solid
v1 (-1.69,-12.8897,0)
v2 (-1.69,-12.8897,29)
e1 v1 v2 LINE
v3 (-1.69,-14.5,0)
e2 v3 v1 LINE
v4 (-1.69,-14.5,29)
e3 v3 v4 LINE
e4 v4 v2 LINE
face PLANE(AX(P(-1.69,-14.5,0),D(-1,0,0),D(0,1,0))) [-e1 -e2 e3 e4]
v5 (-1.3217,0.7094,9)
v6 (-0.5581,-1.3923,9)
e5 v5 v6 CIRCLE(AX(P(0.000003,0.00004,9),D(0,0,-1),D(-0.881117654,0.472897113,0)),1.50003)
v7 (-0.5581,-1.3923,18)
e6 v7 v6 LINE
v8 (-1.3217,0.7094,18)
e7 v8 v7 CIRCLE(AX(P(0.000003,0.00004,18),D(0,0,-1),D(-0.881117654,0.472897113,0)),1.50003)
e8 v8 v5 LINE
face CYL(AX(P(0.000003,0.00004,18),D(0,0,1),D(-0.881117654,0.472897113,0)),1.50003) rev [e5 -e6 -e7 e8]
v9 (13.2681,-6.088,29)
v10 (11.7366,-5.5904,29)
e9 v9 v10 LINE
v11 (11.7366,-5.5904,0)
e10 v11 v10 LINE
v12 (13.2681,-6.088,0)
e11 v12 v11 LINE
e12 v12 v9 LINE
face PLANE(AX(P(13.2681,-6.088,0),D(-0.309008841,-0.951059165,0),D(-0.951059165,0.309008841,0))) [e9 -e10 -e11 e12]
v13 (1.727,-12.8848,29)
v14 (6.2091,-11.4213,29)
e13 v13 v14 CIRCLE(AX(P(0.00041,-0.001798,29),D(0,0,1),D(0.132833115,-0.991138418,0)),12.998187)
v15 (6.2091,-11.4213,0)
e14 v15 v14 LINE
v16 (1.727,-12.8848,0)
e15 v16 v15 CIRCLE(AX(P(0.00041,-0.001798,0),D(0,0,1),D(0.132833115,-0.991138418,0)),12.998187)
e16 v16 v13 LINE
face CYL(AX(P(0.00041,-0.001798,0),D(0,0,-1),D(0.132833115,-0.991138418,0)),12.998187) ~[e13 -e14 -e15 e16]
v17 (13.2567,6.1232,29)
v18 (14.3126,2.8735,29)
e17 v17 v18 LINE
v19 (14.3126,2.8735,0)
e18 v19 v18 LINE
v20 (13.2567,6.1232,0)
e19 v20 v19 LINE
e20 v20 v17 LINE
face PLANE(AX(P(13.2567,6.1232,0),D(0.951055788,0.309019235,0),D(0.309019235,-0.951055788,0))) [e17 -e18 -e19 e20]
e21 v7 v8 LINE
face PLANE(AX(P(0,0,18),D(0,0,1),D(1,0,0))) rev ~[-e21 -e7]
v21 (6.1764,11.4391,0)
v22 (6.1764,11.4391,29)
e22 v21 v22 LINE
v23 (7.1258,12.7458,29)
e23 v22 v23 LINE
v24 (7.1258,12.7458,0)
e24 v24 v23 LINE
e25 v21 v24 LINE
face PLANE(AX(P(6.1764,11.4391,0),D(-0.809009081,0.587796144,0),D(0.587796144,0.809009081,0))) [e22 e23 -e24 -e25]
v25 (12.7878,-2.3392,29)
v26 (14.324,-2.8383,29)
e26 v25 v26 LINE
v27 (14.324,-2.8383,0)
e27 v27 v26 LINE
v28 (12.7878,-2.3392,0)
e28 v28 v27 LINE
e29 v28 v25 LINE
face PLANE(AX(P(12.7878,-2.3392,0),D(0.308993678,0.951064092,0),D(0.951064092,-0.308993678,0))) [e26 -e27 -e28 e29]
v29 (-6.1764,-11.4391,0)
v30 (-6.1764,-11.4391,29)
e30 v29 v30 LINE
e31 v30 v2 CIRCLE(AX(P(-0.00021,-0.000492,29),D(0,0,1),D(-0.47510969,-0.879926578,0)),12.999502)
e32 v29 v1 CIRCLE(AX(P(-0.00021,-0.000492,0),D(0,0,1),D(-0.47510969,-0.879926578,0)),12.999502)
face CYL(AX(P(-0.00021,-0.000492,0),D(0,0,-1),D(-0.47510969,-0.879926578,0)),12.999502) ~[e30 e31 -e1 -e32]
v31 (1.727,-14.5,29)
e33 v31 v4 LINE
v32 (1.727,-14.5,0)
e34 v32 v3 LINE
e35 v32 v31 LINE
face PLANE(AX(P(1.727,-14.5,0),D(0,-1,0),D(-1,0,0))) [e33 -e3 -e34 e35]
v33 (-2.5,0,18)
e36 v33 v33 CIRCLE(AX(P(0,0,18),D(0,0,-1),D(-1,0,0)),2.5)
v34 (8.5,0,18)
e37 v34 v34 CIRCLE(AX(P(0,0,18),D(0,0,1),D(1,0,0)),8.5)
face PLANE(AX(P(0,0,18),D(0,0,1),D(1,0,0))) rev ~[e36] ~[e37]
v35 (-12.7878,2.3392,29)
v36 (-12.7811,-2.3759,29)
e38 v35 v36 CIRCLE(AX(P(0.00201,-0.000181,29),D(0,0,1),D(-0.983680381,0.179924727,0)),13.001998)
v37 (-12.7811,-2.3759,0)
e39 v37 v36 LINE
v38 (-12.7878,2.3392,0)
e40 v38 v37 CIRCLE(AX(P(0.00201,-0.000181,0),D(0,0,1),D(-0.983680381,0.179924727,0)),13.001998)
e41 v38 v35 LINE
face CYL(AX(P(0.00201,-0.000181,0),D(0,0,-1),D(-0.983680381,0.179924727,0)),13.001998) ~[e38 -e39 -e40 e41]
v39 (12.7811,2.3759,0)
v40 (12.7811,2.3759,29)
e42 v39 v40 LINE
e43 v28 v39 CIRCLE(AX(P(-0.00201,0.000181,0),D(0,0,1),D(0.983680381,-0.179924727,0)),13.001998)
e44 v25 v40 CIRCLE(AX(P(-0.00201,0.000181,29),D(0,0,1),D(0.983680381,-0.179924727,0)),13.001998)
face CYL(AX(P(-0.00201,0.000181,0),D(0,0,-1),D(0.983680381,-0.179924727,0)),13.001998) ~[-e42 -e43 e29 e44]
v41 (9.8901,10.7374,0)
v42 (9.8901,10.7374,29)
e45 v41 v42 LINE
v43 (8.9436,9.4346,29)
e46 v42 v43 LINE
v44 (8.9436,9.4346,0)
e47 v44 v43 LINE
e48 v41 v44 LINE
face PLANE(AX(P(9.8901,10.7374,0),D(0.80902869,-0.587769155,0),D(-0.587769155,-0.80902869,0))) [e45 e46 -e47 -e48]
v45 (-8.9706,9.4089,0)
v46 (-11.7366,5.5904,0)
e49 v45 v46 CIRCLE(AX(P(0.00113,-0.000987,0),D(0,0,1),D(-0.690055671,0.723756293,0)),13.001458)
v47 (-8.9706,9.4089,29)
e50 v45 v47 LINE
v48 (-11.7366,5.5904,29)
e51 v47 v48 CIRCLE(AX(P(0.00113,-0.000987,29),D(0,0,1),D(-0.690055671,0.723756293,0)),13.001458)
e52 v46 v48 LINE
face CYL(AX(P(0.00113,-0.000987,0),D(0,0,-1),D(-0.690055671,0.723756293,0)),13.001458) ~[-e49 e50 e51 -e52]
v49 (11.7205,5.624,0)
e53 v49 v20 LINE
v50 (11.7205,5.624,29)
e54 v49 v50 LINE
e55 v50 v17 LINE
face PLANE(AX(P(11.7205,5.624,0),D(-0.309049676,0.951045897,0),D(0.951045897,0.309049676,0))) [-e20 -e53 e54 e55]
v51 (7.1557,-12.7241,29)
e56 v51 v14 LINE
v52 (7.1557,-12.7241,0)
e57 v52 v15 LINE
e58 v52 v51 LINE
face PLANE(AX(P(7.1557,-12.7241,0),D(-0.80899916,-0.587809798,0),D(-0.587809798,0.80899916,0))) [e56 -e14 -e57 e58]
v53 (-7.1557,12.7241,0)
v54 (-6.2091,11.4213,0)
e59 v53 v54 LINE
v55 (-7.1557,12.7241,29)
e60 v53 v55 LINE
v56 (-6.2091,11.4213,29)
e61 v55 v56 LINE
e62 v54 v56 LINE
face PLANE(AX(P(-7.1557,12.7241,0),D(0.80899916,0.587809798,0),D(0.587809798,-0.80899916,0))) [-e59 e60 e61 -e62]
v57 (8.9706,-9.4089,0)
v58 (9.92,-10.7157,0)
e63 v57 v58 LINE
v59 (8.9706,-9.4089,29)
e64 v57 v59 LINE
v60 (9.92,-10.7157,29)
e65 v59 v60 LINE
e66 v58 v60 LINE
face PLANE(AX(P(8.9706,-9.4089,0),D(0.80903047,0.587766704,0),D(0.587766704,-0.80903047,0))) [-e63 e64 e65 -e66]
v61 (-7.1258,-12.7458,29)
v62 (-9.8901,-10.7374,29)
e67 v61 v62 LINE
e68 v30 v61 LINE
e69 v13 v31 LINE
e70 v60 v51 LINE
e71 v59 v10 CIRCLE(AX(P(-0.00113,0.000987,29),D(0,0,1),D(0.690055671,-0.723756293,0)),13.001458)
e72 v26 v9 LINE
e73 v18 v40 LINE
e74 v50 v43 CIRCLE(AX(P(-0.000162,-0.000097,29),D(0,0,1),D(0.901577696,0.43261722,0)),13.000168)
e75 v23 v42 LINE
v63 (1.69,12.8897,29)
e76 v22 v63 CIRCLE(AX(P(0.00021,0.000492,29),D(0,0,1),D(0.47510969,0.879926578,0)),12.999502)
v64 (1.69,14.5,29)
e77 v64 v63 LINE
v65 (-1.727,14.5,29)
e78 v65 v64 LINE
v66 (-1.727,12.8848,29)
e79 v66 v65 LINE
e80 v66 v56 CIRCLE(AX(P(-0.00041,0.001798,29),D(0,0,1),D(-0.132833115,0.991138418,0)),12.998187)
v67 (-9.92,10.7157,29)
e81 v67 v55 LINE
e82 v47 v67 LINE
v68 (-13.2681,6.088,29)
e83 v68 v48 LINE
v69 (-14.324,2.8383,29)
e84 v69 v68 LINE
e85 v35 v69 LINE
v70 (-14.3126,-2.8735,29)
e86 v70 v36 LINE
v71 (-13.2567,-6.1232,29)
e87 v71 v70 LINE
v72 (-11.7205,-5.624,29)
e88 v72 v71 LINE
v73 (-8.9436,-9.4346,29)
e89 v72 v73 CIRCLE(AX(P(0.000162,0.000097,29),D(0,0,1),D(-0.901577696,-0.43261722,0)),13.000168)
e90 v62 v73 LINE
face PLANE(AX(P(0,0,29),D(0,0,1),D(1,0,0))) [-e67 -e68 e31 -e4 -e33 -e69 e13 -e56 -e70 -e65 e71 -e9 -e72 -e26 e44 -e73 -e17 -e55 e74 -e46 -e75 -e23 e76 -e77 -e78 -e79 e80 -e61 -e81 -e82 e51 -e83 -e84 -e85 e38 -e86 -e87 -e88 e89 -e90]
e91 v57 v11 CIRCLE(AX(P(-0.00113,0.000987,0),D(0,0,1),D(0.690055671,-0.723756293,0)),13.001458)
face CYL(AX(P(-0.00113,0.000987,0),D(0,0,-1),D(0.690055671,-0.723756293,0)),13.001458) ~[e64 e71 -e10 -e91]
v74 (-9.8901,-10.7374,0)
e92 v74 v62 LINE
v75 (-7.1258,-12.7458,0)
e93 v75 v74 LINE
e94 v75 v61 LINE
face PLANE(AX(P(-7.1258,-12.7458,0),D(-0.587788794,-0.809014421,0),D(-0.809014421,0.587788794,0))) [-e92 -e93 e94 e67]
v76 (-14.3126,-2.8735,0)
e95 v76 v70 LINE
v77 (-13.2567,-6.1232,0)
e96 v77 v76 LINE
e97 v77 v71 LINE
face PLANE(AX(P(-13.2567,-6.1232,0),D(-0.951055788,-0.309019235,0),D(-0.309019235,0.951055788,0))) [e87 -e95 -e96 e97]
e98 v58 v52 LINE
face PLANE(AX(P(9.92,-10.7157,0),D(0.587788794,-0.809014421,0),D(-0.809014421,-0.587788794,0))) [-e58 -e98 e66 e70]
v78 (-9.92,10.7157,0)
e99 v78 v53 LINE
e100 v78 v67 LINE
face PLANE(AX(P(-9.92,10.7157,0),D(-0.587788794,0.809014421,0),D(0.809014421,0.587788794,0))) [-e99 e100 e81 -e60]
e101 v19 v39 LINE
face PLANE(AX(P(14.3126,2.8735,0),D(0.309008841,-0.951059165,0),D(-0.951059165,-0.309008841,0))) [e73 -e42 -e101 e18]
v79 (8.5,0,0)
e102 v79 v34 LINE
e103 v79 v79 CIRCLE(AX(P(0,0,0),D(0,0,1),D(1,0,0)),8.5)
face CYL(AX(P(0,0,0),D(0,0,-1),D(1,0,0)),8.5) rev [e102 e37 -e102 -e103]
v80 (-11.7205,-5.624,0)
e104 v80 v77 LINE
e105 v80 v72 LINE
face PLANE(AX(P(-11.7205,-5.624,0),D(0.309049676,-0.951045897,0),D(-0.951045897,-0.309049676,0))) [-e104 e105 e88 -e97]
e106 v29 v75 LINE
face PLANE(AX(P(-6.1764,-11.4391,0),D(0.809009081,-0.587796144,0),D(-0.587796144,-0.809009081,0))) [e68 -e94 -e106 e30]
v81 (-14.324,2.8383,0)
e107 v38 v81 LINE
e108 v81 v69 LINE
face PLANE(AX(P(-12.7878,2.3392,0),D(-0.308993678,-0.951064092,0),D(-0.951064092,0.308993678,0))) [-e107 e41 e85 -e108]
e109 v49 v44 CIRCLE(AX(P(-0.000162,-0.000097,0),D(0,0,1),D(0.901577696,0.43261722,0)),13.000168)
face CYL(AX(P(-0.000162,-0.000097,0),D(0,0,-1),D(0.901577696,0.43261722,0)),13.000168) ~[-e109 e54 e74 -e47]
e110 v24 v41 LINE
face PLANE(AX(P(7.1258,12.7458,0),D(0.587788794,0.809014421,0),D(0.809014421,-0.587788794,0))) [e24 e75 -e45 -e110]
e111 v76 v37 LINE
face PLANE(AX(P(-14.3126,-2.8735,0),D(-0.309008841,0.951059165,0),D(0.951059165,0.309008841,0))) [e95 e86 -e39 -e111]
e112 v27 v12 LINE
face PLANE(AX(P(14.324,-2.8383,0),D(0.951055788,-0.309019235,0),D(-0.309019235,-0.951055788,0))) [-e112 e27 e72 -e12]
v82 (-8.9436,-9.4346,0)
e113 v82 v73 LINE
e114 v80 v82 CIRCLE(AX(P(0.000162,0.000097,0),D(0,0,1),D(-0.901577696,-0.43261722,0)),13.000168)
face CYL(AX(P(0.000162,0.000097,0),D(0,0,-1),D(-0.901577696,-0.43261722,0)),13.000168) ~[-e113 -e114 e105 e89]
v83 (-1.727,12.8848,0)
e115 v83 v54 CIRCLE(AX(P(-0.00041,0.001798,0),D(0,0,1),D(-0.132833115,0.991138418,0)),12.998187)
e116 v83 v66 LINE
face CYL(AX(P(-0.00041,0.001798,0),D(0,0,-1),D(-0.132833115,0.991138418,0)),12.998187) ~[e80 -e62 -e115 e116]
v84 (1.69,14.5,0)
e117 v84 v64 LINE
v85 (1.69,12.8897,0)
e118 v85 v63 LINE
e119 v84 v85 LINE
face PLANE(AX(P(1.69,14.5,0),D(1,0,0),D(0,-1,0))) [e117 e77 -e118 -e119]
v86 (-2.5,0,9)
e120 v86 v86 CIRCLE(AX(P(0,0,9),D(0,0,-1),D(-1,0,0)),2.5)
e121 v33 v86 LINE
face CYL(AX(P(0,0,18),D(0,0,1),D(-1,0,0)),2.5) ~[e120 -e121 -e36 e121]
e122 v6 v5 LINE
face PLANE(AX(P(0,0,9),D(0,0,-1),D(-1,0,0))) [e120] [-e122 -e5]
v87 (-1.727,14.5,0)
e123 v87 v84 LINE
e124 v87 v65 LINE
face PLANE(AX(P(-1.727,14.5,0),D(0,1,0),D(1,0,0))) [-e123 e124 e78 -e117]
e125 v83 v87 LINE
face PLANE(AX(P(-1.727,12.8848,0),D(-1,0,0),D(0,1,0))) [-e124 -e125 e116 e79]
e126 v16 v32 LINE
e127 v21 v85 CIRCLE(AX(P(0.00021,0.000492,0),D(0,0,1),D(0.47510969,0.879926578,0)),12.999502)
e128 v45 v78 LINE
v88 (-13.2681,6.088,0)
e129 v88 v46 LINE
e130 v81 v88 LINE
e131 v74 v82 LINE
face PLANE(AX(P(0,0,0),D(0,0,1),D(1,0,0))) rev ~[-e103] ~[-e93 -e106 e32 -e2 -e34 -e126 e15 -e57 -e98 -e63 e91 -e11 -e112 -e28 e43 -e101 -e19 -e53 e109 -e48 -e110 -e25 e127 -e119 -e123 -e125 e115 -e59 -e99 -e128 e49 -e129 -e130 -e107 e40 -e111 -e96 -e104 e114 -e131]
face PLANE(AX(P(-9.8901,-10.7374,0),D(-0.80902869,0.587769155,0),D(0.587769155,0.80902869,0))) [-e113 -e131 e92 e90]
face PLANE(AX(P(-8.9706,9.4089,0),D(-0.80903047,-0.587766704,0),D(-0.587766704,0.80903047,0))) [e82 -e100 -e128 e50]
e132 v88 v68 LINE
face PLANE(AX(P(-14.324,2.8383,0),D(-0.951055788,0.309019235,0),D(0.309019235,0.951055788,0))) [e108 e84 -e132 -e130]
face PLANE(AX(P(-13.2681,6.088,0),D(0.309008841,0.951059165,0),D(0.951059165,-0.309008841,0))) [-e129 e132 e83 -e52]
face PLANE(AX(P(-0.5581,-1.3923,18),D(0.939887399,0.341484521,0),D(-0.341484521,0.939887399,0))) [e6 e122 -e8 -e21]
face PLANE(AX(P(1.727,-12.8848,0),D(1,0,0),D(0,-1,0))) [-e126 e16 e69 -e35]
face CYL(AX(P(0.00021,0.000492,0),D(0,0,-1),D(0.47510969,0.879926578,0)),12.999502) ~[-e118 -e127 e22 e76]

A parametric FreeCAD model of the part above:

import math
import FreeCAD as App
import Part
import Sketcher

V = App.Vector
Q = App.Units.Quantity

doc = App.newDocument("Part")
body = doc.addObject("PartDesign::Body", "Body")

sketch1 = body.newObject("Sketcher::SketchObject", "Sketch")
sketch1.AttachmentSupport = (doc.getObject("XY_Plane"), [""])
sketch1.MapMode = "FlatFace"
sketch1.addGeometry([
    Part.LineSegment(V(1.69, 14.5, 0), V(-1.727, 14.5, 0)),
    Part.LineSegment(V(-1.727, 14.5, 0), V(-1.727, 12.8848, 0)),
    Part.ArcOfCircle(Part.Circle(V(-0.00041, 0.001798, 0), V(0, 0, 1), 12.998187), math.radians(97.633338), math.radians(118.532563)),
    Part.LineSegment(V(-6.2091, 11.4213, 0), V(-7.1557, 12.7241, 0)),
    Part.LineSegment(V(-7.1557, 12.7241, 0), V(-9.92, 10.7157, 0)),
    Part.LineSegment(V(-9.92, 10.7157, 0), V(-8.9706, 9.4089, 0)),
    Part.ArcOfCircle(Part.Circle(V(0.00113, -0.000987, 0), V(0, 0, 1), 13.001458), math.radians(133.634516), math.radians(154.528729)),
    Part.LineSegment(V(-11.7366, 5.5904, 0), V(-13.2681, 6.088, 0)),
    Part.LineSegment(V(-13.2681, 6.088, 0), V(-14.324, 2.8383, 0)),
    Part.LineSegment(V(-14.324, 2.8383, 0), V(-12.7878, 2.3392, 0)),
    Part.ArcOfCircle(Part.Circle(V(0.00201, -0.000181, 0), V(0, 0, 1), 13.001998), math.radians(169.634625), math.radians(190.528206)),
    Part.LineSegment(V(-12.7811, -2.3759, 0), V(-14.3126, -2.8735, 0)),
    Part.LineSegment(V(-14.3126, -2.8735, 0), V(-13.2567, -6.1232, 0)),
    Part.LineSegment(V(-13.2567, -6.1232, 0), V(-11.7205, -5.624, 0)),
    Part.ArcOfCircle(Part.Circle(V(0, 0, 0), V(0, 0, 1), 13.000036), math.radians(-154.366305), math.radians(-133.469625)),
    Part.LineSegment(V(-8.9436, -9.4346, 0), V(-9.8901, -10.7374, 0)),
    Part.LineSegment(V(-9.8901, -10.7374, 0), V(-7.1258, -12.7458, 0)),
    Part.LineSegment(V(-7.1258, -12.7458, 0), V(-6.1764, -11.4391, 0)),
    Part.ArcOfCircle(Part.Circle(V(0, 0, 0), V(0, 0, 1), 12.999964), math.radians(-118.366277), math.radians(-97.469582)),
    Part.LineSegment(V(-1.69, -12.8897, 0), V(-1.69, -14.5, 0)),
    Part.LineSegment(V(-1.69, -14.5, 0), V(1.727, -14.5, 0)),
    Part.LineSegment(V(1.727, -14.5, 0), V(1.727, -12.8848, 0)),
    Part.ArcOfCircle(Part.Circle(V(0.00041, -0.001798, 0), V(0, 0, 1), 12.998187), math.radians(-82.366662), math.radians(-61.467437)),
    Part.LineSegment(V(6.2091, -11.4213, 0), V(7.1557, -12.7241, 0)),
    Part.LineSegment(V(7.1557, -12.7241, 0), V(9.92, -10.7157, 0)),
    Part.LineSegment(V(9.92, -10.7157, 0), V(8.9706, -9.4089, 0)),
    Part.ArcOfCircle(Part.Circle(V(-0.00113, 0.000987, 0), V(0, 0, 1), 13.001458), math.radians(-46.365484), math.radians(-25.471271)),
    Part.LineSegment(V(11.7366, -5.5904, 0), V(13.2681, -6.088, 0)),
    Part.LineSegment(V(13.2681, -6.088, 0), V(14.324, -2.8383, 0)),
    Part.LineSegment(V(14.324, -2.8383, 0), V(12.7878, -2.3392, 0)),
    Part.ArcOfCircle(Part.Circle(V(-0.00201, 0.000181, 0), V(0, 0, 1), 13.001998), math.radians(-10.365375), math.radians(10.528206)),
    Part.LineSegment(V(12.7811, 2.3759, 0), V(14.3126, 2.8735, 0)),
    Part.LineSegment(V(14.3126, 2.8735, 0), V(13.2567, 6.1232, 0)),
    Part.LineSegment(V(13.2567, 6.1232, 0), V(11.7205, 5.624, 0)),
    Part.ArcOfCircle(Part.Circle(V(0, 0, 0), V(0, 0, 1), 13.000036), math.radians(25.633695), math.radians(46.530375)),
    Part.LineSegment(V(8.9436, 9.4346, 0), V(9.8901, 10.7374, 0)),
    Part.LineSegment(V(9.8901, 10.7374, 0), V(7.1258, 12.7458, 0)),
    Part.LineSegment(V(7.1258, 12.7458, 0), V(6.1764, 11.4391, 0)),
    Part.ArcOfCircle(Part.Circle(V(0, 0, 0), V(0, 0, 1), 12.999964), math.radians(61.633723), math.radians(82.530418)),
    Part.LineSegment(V(1.69, 12.8897, 0), V(1.69, 14.5, 0)),
    Part.Circle(V(0, 0, 0), V(0, 0, 1), 8.5),
], False)
sketch1.addConstraint([
    Sketcher.Constraint("Coincident", 0, 2, 1, 1),
    Sketcher.Constraint("Coincident", 1, 2, 2, 1),
    Sketcher.Constraint("Coincident", 2, 2, 3, 1),
    Sketcher.Constraint("Coincident", 3, 2, 4, 1),
    Sketcher.Constraint("Coincident", 4, 2, 5, 1),
    Sketcher.Constraint("Coincident", 5, 2, 6, 1),
    Sketcher.Constraint("Coincident", 6, 2, 7, 1),
    Sketcher.Constraint("Coincident", 7, 2, 8, 1),
    Sketcher.Constraint("Coincident", 8, 2, 9, 1),
    Sketcher.Constraint("Coincident", 9, 2, 10, 1),
    Sketcher.Constraint("Coincident", 10, 2, 11, 1),
    Sketcher.Constraint("Coincident", 11, 2, 12, 1),
    Sketcher.Constraint("Coincident", 12, 2, 13, 1),
    Sketcher.Constraint("Coincident", 13, 2, 14, 1),
    Sketcher.Constraint("Coincident", 14, 2, 15, 1),
    Sketcher.Constraint("Coincident", 15, 2, 16, 1),
    Sketcher.Constraint("Coincident", 16, 2, 17, 1),
    Sketcher.Constraint("Coincident", 17, 2, 18, 1),
    Sketcher.Constraint("Coincident", 18, 2, 19, 1),
    Sketcher.Constraint("Coincident", 19, 2, 20, 1),
    Sketcher.Constraint("Coincident", 20, 2, 21, 1),
    Sketcher.Constraint("Coincident", 21, 2, 22, 1),
    Sketcher.Constraint("Coincident", 22, 2, 23, 1),
    Sketcher.Constraint("Coincident", 23, 2, 24, 1),
    Sketcher.Constraint("Coincident", 24, 2, 25, 1),
    Sketcher.Constraint("Coincident", 25, 2, 26, 1),
    Sketcher.Constraint("Coincident", 26, 2, 27, 1),
    Sketcher.Constraint("Coincident", 27, 2, 28, 1),
    Sketcher.Constraint("Coincident", 28, 2, 29, 1),
    Sketcher.Constraint("Coincident", 29, 2, 30, 1),
    Sketcher.Constraint("Coincident", 30, 2, 31, 1),
    Sketcher.Constraint("Coincident", 31, 2, 32, 1),
    Sketcher.Constraint("Coincident", 32, 2, 33, 1),
    Sketcher.Constraint("Coincident", 33, 2, 34, 1),
    Sketcher.Constraint("Coincident", 34, 2, 35, 1),
    Sketcher.Constraint("Coincident", 35, 2, 36, 1),
    Sketcher.Constraint("Coincident", 36, 2, 37, 1),
    Sketcher.Constraint("Coincident", 37, 2, 38, 1),
    Sketcher.Constraint("Coincident", 38, 2, 39, 1),
    Sketcher.Constraint("Coincident", 39, 2, 0, 1),
    Sketcher.Constraint("Horizontal", 0),
    Sketcher.Constraint("Vertical", 1),
    Sketcher.Constraint("Vertical", 19),
    Sketcher.Constraint("Horizontal", 20),
    Sketcher.Constraint("Vertical", 21),
    Sketcher.Constraint("Vertical", 39),
    Sketcher.Constraint("Coincident", 14, 3, -1, 1),
    Sketcher.Constraint("Coincident", 18, 3, -1, 1),
    Sketcher.Constraint("Coincident", 34, 3, -1, 1),
    Sketcher.Constraint("Coincident", 38, 3, -1, 1),
    Sketcher.Constraint("Coincident", 40, 3, -1, 1),
    Sketcher.Constraint("Equal", 14, 18),
    Sketcher.Constraint("Equal", 2, 22),
    Sketcher.Constraint("Equal", 6, 26),
    Sketcher.Constraint("Equal", 10, 30),
    Sketcher.Constraint("Equal", 18, 34),
    Sketcher.Constraint("Equal", 34, 38),
    Sketcher.Constraint("Symmetric", 2, 3, 22, 3, -1, 1),
    Sketcher.Constraint("Symmetric", 6, 3, 26, 3, -1, 1),
    Sketcher.Constraint("Symmetric", 10, 3, 30, 3, -1, 1),
    Sketcher.Constraint("Symmetric", 0, 2, 20, 2, -1, 1),
    Sketcher.Constraint("Symmetric", 3, 2, 23, 2, -1, 1),
    Sketcher.Constraint("Symmetric", 4, 2, 24, 2, -1, 1),
    Sketcher.Constraint("Symmetric", 7, 2, 27, 2, -1, 1),
    Sketcher.Constraint("Symmetric", 8, 2, 28, 2, -1, 1),
    Sketcher.Constraint("Symmetric", 11, 2, 31, 2, -1, 1),
    Sketcher.Constraint("Symmetric", 12, 2, 32, 2, -1, 1),
    Sketcher.Constraint("Symmetric", 15, 2, 35, 2, -1, 1),
    Sketcher.Constraint("Symmetric", 16, 2, 36, 2, -1, 1),
    Sketcher.Constraint("PointOnObject", 10, 3, -1),
    Sketcher.Constraint("Perpendicular", 3, 4),
    Sketcher.Constraint("Perpendicular", 4, 5),
    Sketcher.Constraint("Perpendicular", 7, 8),
    Sketcher.Constraint("Perpendicular", 8, 9),
    Sketcher.Constraint("Perpendicular", 11, 12),
    Sketcher.Constraint("Perpendicular", 12, 13),
    Sketcher.Constraint("Perpendicular", 15, 16),
    Sketcher.Constraint("Perpendicular", 16, 17),
    Sketcher.Constraint("Parallel", 5, 23),
    Sketcher.Constraint("Perpendicular", 24, 25),
    Sketcher.Constraint("Parallel", 9, 27),
    Sketcher.Constraint("Perpendicular", 28, 29),
    Sketcher.Constraint("Parallel", 13, 31),
    Sketcher.Constraint("Perpendicular", 32, 33),
    Sketcher.Constraint("Parallel", 17, 35),
    Sketcher.Constraint("Perpendicular", 36, 37),
    Sketcher.Constraint("Equal", 0, 20),
    Sketcher.Constraint("Equal", 3, 7),
    Sketcher.Constraint("Equal", 4, 8),
    Sketcher.Constraint("Equal", 5, 9),
    Sketcher.Constraint("Equal", 7, 11),
    Sketcher.Constraint("Equal", 8, 12),
    Sketcher.Constraint("Equal", 9, 13),
    Sketcher.Constraint("Equal", 11, 15),
    Sketcher.Constraint("Equal", 12, 16),
    Sketcher.Constraint("Equal", 13, 17),
    Sketcher.Constraint("Diameter", 40, 17.0),
    Sketcher.Constraint("Radius", 14, 13.0),
    Sketcher.Constraint("Angle", 4, Q("-143.9997 deg")),
    Sketcher.Constraint("Angle", 7, Q("162.0005 deg")),
    Sketcher.Constraint("Angle", 11, Q("-162.0005 deg")),
    Sketcher.Constraint("Angle", 15, Q("-125.9989 deg")),
    Sketcher.Constraint("Radius", 10, 13.002),
    Sketcher.Constraint("DistanceY", -1, 1, 0, 2, 14.5),
    Sketcher.Constraint("Radius", 2, 12.9982),
    Sketcher.Constraint("Radius", 6, 13.0015),
    Sketcher.Constraint("DistanceX", 15, 2, 18, 2, 8.2),
    Sketcher.Constraint("DistanceX", 0, 2, 0, 1, 3.417),
    Sketcher.Constraint("DistanceX", 4, 2, -1, 1, 9.92),
    Sketcher.Constraint("DistanceX", 15, 2, -1, 1, 9.89),
    Sketcher.Constraint("DistanceX", 12, 2, 6, 2, 1.52),
    Sketcher.Constraint("DistanceY", 16, 2, 10, 2, 10.37),
    Sketcher.Constraint("Distance", 8, 3.417),
    Sketcher.Constraint("DistanceY", 1, 2, 1, 1, 1.6152),
    Sketcher.Constraint("DistanceY", 6, 3, -1, 1, 0.001),
    Sketcher.Constraint("DistanceX", -1, 1, 10, 3, 0.002),
])
pad1 = body.newObject("PartDesign::Pad", "Pad")
pad1.Profile = sketch1
pad1.Length = 29

sketch2 = body.newObject("Sketcher::SketchObject", "Sketch001")
sketch2.AttachmentSupport = (doc.getObject("XY_Plane"), [""])
sketch2.MapMode = "FlatFace"
sketch2.AttachmentOffset = App.Placement(V(0, 0, 29), App.Rotation())
sketch2.addGeometry(Part.Circle(V(0, 0, 0), V(0, 0, 1), 8), False)
sketch2.addConstraint([
    Sketcher.Constraint("Coincident", 0, 3, -1, 1),
    Sketcher.Constraint("Diameter", 0, 17.0),
])
pad2 = body.newObject("PartDesign::Pad", "Pad001")
pad2.Profile = sketch2
pad2.Length = 11
pad2.Reversed = True

sketch3 = body.newObject("Sketcher::SketchObject", "Sketch002")
sketch3.AttachmentSupport = (doc.getObject("XY_Plane"), [""])
sketch3.MapMode = "FlatFace"
sketch3.AttachmentOffset = App.Placement(V(0, 0, 18), App.Rotation())
sketch3.addGeometry([
    Part.Circle(V(0, 0, 0), V(0, 0, 1), 2.5),
    Part.ArcOfCircle(Part.Circle(V(0, 0, 0), V(0, 0, 1), 1.5), math.radians(-112), math.radians(152)),
    Part.LineSegment(V(-1.3, 0.7, 0), V(-0.6, -1.4, 0)),
], False)
sketch3.addConstraint([
    Sketcher.Constraint("Coincident", 1, 1, 2, 2),
    Sketcher.Constraint("Coincident", 2, 1, 1, 2),
    Sketcher.Constraint("Coincident", 0, 3, -1, 1),
    Sketcher.Constraint("Coincident", 1, 3, -1, 1),
    Sketcher.Constraint("Diameter", 0, 5.0),
    Sketcher.Constraint("Radius", 1, 1.5),
    Sketcher.Constraint("Distance", 2, 2.236),
    Sketcher.Constraint("DistanceX", 1, 1, -1, 1, 0.5581),
])
pad3 = body.newObject("PartDesign::Pad", "Pad002")
pad3.Profile = sketch3
pad3.Length = 9
pad3.Reversed = True

doc.recompute()
